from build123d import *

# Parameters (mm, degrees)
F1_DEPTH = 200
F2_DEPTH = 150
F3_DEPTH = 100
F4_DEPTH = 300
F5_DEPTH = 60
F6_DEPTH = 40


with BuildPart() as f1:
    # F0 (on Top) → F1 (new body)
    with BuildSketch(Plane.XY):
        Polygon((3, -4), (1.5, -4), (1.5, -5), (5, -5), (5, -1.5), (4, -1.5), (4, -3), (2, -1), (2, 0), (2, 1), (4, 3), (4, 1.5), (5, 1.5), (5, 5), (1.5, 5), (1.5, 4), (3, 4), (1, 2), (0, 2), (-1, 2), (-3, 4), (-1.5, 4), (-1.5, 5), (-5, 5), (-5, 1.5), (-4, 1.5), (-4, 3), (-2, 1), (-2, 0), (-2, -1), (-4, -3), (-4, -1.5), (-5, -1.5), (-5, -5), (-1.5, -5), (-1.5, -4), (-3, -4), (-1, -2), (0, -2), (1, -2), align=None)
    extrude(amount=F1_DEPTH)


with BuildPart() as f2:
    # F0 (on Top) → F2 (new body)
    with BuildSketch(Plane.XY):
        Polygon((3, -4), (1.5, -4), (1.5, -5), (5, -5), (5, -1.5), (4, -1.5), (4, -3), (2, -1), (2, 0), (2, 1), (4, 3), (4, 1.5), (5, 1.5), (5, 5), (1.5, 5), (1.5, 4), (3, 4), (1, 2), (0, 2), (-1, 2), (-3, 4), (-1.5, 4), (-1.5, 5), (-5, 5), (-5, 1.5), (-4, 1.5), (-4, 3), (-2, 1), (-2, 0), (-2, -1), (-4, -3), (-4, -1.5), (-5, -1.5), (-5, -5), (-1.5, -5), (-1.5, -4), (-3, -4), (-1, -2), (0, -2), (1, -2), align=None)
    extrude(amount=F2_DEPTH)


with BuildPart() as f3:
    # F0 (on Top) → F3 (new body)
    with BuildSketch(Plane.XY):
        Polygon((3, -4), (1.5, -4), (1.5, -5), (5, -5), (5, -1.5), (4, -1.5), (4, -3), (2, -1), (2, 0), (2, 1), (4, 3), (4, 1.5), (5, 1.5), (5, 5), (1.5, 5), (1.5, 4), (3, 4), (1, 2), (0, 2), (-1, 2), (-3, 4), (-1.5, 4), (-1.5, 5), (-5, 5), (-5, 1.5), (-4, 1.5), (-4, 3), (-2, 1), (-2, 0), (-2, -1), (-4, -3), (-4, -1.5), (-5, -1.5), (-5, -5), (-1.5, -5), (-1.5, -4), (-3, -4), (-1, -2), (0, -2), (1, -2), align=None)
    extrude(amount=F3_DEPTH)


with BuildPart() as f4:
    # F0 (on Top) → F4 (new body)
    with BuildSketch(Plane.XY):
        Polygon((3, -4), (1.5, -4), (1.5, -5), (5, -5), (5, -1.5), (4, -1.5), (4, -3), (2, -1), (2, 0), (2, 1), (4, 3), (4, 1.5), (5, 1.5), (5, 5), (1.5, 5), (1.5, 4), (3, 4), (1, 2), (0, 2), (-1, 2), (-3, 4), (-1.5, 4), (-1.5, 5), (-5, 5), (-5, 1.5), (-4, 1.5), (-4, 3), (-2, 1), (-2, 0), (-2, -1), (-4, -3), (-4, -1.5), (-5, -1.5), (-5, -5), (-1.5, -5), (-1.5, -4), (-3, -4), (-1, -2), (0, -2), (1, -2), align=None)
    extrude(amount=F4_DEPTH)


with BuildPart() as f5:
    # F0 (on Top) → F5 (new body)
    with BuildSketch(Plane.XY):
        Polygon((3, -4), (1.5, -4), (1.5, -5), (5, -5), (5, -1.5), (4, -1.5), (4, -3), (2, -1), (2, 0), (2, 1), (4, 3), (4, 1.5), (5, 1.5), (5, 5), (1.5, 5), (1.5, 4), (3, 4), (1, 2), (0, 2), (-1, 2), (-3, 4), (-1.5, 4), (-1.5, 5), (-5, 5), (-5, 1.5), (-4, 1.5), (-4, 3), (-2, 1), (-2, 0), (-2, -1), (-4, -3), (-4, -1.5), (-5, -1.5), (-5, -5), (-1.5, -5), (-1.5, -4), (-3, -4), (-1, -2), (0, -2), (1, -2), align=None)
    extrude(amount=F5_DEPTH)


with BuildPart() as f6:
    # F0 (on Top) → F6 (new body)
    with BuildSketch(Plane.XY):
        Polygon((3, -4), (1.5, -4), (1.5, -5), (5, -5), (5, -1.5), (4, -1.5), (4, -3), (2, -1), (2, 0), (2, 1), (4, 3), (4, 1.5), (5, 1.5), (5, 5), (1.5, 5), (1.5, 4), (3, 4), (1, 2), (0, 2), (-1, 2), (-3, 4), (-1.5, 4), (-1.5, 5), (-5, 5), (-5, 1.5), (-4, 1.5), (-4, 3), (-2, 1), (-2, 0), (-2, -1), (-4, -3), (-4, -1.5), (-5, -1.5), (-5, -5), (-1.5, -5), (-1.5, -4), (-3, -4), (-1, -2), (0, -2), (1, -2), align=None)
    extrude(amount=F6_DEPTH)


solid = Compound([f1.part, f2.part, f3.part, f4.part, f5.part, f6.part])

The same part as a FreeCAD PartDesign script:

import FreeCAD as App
import Part
import Sketcher


def add_polygon(sketch, points):
    """Adds a closed chain of lines whose ends are joined by coincident constraints."""
    first, n = sketch.GeometryCount, len(points)
    for a, b in zip(points, points[1:] + points[:1]):
        sketch.addGeometry(Part.LineSegment(App.Vector(*a, 0), App.Vector(*b, 0)), False)
    for i in range(n):
        sketch.addConstraint(Sketcher.Constraint("Coincident", first + i, 2, first + (i + 1) % n, 1))

doc = App.newDocument("Part")
body = doc.addObject("PartDesign::Body", "Body")

sketch1 = body.newObject("Sketcher::SketchObject", "Sketch")
sketch1.AttachmentSupport = (doc.getObject("XY_Plane"), [""])
sketch1.MapMode = "FlatFace"
add_polygon(sketch1, [(3, -4), (1.5, -4), (1.5, -5), (5, -5), (5, -1.5), (4, -1.5), (4, -3), (2, -1), (2, 1), (4, 3), (4, 1.5), (5, 1.5), (5, 5), (1.5, 5), (1.5, 4), (3, 4), (1, 2), (-1, 2), (-3, 4), (-1.5, 4), (-1.5, 5), (-5, 5), (-5, 1.5), (-4, 1.5), (-4, 3), (-2, 1), (-2, -1), (-4, -3), (-4, -1.5), (-5, -1.5), (-5, -5), (-1.5, -5), (-1.5, -4), (-3, -4), (-1, -2), (1, -2)])
sketch1.addConstraint([
    Sketcher.Constraint("Horizontal", 0),
    Sketcher.Constraint("Vertical", 1),
    Sketcher.Constraint("Horizontal", 2),
    Sketcher.Constraint("Vertical", 3),
    Sketcher.Constraint("Horizontal", 4),
    Sketcher.Constraint("Vertical", 5),
    Sketcher.Constraint("Vertical", 7),
    Sketcher.Constraint("Vertical", 9),
    Sketcher.Constraint("Horizontal", 10),
    Sketcher.Constraint("Vertical", 11),
    Sketcher.Constraint("Horizontal", 12),
    Sketcher.Constraint("Vertical", 13),
    Sketcher.Constraint("Horizontal", 14),
    Sketcher.Constraint("Horizontal", 16),
    Sketcher.Constraint("Horizontal", 18),
    Sketcher.Constraint("Vertical", 19),
    Sketcher.Constraint("Horizontal", 20),
    Sketcher.Constraint("Vertical", 21),
    Sketcher.Constraint("Horizontal", 22),
    Sketcher.Constraint("Vertical", 23),
    Sketcher.Constraint("Vertical", 25),
    Sketcher.Constraint("Vertical", 27),
    Sketcher.Constraint("Horizontal", 28),
    Sketcher.Constraint("Vertical", 29),
    Sketcher.Constraint("Horizontal", 30),
    Sketcher.Constraint("Vertical", 31),
    Sketcher.Constraint("Horizontal", 32),
    Sketcher.Constraint("Horizontal", 34),
    Sketcher.Constraint("Symmetric", 0, 2, 18, 2, -1, 1),
    Sketcher.Constraint("Symmetric", 2, 2, 20, 2, -1, 1),
    Sketcher.Constraint("Symmetric", 4, 2, 22, 2, -1, 1),
    Sketcher.Constraint("Symmetric", 6, 2, 24, 2, -1, 1),
    Sketcher.Constraint("Symmetric", 8, 2, 26, 2, -1, 1),
    Sketcher.Constraint("Symmetric", 10, 2, 28, 2, -1, 1),
    Sketcher.Constraint("Symmetric", 12, 2, 30, 2, -1, 1),
    Sketcher.Constraint("Symmetric", 14, 2, 32, 2, -1, 1),
    Sketcher.Constraint("Symmetric", 15, 2, 33, 2, -1, 1),
    Sketcher.Constraint("Symmetric", 14, 2, 17, 2, -2),
    Sketcher.Constraint("Symmetric", 12, 2, 19, 2, -2),
    Sketcher.Constraint("Symmetric", 10, 2, 21, 2, -2),
    Sketcher.Constraint("Symmetric", 8, 2, 23, 2, -2),
    Sketcher.Constraint("Perpendicular", 6, 8),
    Sketcher.Constraint("Parallel", 8, 15),
    Sketcher.Constraint("Perpendicular", 15, 17),
    Sketcher.Constraint("Parallel", 17, 24),
    Sketcher.Constraint("Perpendicular", 24, 26),
    Sketcher.Constraint("Perpendicular", 33, 35),
    Sketcher.Constraint("Horizontal", 7, 2, 24, 2),
    Sketcher.Constraint("Vertical", 15, 2, 34, 2),
    Sketcher.Constraint("Equal", 28, 1),
    Sketcher.Constraint("Equal", 30, 3),
    Sketcher.Constraint("Equal", 32, 5),
    Sketcher.Constraint("Equal", 34, 7),
    Sketcher.Constraint("Equal", 8, 15),
    Sketcher.Constraint("DistanceX", 4, 2, 4, 1, 1.0),
    Sketcher.Constraint("DistanceX", 16, 2, 16, 1, 2.0),
    Sketcher.Constraint("DistanceX", 0, 2, 0, 1, 1.5),
    Sketcher.Constraint("DistanceX", 2, 1, 2, 2, 3.5),
    Sketcher.Constraint("DistanceY", 0, 2, -1, 1, 4.0),
])
pad1 = body.newObject("PartDesign::Pad", "Pad")
pad1.Profile = sketch1
pad1.Length = 200
body2 = doc.addObject("PartDesign::Body", "Body001")

sketch2 = body2.newObject("Sketcher::SketchObject", "Sketch001")
sketch2.AttachmentSupport = (doc.getObject("XY_Plane001"), [""])
sketch2.MapMode = "FlatFace"
add_polygon(sketch2, [(3, -4), (1.5, -4), (1.5, -5), (5, -5), (5, -1.5), (4, -1.5), (4, -3), (2, -1), (2, 1), (4, 3), (4, 1.5), (5, 1.5), (5, 5), (1.5, 5), (1.5, 4), (3, 4), (1, 2), (-1, 2), (-3, 4), (-1.5, 4), (-1.5, 5), (-5, 5), (-5, 1.5), (-4, 1.5), (-4, 3), (-2, 1), (-2, -1), (-4, -3), (-4, -1.5), (-5, -1.5), (-5, -5), (-1.5, -5), (-1.5, -4), (-3, -4), (-1, -2), (1, -2)])
sketch2.addConstraint([
    Sketcher.Constraint("Horizontal", 0),
    Sketcher.Constraint("Vertical", 1),
    Sketcher.Constraint("Horizontal", 2),
    Sketcher.Constraint("Vertical", 3),
    Sketcher.Constraint("Horizontal", 4),
    Sketcher.Constraint("Vertical", 5),
    Sketcher.Constraint("Vertical", 7),
    Sketcher.Constraint("Vertical", 9),
    Sketcher.Constraint("Horizontal", 10),
    Sketcher.Constraint("Vertical", 11),
    Sketcher.Constraint("Horizontal", 12),
    Sketcher.Constraint("Vertical", 13),
    Sketcher.Constraint("Horizontal", 14),
    Sketcher.Constraint("Horizontal", 16),
    Sketcher.Constraint("Horizontal", 18),
    Sketcher.Constraint("Vertical", 19),
    Sketcher.Constraint("Horizontal", 20),
    Sketcher.Constraint("Vertical", 21),
    Sketcher.Constraint("Horizontal", 22),
    Sketcher.Constraint("Vertical", 23),
    Sketcher.Constraint("Vertical", 25),
    Sketcher.Constraint("Vertical", 27),
    Sketcher.Constraint("Horizontal", 28),
    Sketcher.Constraint("Vertical", 29),
    Sketcher.Constraint("Horizontal", 30),
    Sketcher.Constraint("Vertical", 31),
    Sketcher.Constraint("Horizontal", 32),
    Sketcher.Constraint("Horizontal", 34),
    Sketcher.Constraint("Symmetric", 0, 2, 18, 2, -1, 1),
    Sketcher.Constraint("Symmetric", 2, 2, 20, 2, -1, 1),
    Sketcher.Constraint("Symmetric", 4, 2, 22, 2, -1, 1),
    Sketcher.Constraint("Symmetric", 6, 2, 24, 2, -1, 1),
    Sketcher.Constraint("Symmetric", 8, 2, 26, 2, -1, 1),
    Sketcher.Constraint("Symmetric", 10, 2, 28, 2, -1, 1),
    Sketcher.Constraint("Symmetric", 12, 2, 30, 2, -1, 1),
    Sketcher.Constraint("Symmetric", 14, 2, 32, 2, -1, 1),
    Sketcher.Constraint("Symmetric", 15, 2, 33, 2, -1, 1),
    Sketcher.Constraint("Symmetric", 14, 2, 17, 2, -2),
    Sketcher.Constraint("Symmetric", 12, 2, 19, 2, -2),
    Sketcher.Constraint("Symmetric", 10, 2, 21, 2, -2),
    Sketcher.Constraint("Symmetric", 8, 2, 23, 2, -2),
    Sketcher.Constraint("Perpendicular", 6, 8),
    Sketcher.Constraint("Parallel", 8, 15),
    Sketcher.Constraint("Perpendicular", 15, 17),
    Sketcher.Constraint("Parallel", 17, 24),
    Sketcher.Constraint("Perpendicular", 24, 26),
    Sketcher.Constraint("Perpendicular", 33, 35),
    Sketcher.Constraint("Horizontal", 7, 2, 24, 2),
    Sketcher.Constraint("Vertical", 15, 2, 34, 2),
    Sketcher.Constraint("Equal", 28, 1),
    Sketcher.Constraint("Equal", 30, 3),
    Sketcher.Constraint("Equal", 32, 5),
    Sketcher.Constraint("Equal", 34, 7),
    Sketcher.Constraint("Equal", 8, 15),
    Sketcher.Constraint("DistanceX", 4, 2, 4, 1, 1.0),
    Sketcher.Constraint("DistanceX", 16, 2, 16, 1, 2.0),
    Sketcher.Constraint("DistanceX", 0, 2, 0, 1, 1.5),
    Sketcher.Constraint("DistanceX", 2, 1, 2, 2, 3.5),
    Sketcher.Constraint("DistanceY", 0, 2, -1, 1, 4.0),
])
pad2 = body2.newObject("PartDesign::Pad", "Pad001")
pad2.Profile = sketch2
pad2.Length = 150
body3 = doc.addObject("PartDesign::Body", "Body002")

sketch3 = body3.newObject("Sketcher::SketchObject", "Sketch002")
sketch3.AttachmentSupport = (doc.getObject("XY_Plane002"), [""])
sketch3.MapMode = "FlatFace"
add_polygon(sketch3, [(3, -4), (1.5, -4), (1.5, -5), (5, -5), (5, -1.5), (4, -1.5), (4, -3), (2, -1), (2, 1), (4, 3), (4, 1.5), (5, 1.5), (5, 5), (1.5, 5), (1.5, 4), (3, 4), (1, 2), (-1, 2), (-3, 4), (-1.5, 4), (-1.5, 5), (-5, 5), (-5, 1.5), (-4, 1.5), (-4, 3), (-2, 1), (-2, -1), (-4, -3), (-4, -1.5), (-5, -1.5), (-5, -5), (-1.5, -5), (-1.5, -4), (-3, -4), (-1, -2), (1, -2)])
sketch3.addConstraint([
    Sketcher.Constraint("Horizontal", 0),
    Sketcher.Constraint("Vertical", 1),
    Sketcher.Constraint("Horizontal", 2),
    Sketcher.Constraint("Vertical", 3),
    Sketcher.Constraint("Horizontal", 4),
    Sketcher.Constraint("Vertical", 5),
    Sketcher.Constraint("Vertical", 7),
    Sketcher.Constraint("Vertical", 9),
    Sketcher.Constraint("Horizontal", 10),
    Sketcher.Constraint("Vertical", 11),
    Sketcher.Constraint("Horizontal", 12),
    Sketcher.Constraint("Vertical", 13),
    Sketcher.Constraint("Horizontal", 14),
    Sketcher.Constraint("Horizontal", 16),
    Sketcher.Constraint("Horizontal", 18),
    Sketcher.Constraint("Vertical", 19),
    Sketcher.Constraint("Horizontal", 20),
    Sketcher.Constraint("Vertical", 21),
    Sketcher.Constraint("Horizontal", 22),
    Sketcher.Constraint("Vertical", 23),
    Sketcher.Constraint("Vertical", 25),
    Sketcher.Constraint("Vertical", 27),
    Sketcher.Constraint("Horizontal", 28),
    Sketcher.Constraint("Vertical", 29),
    Sketcher.Constraint("Horizontal", 30),
    Sketcher.Constraint("Vertical", 31),
    Sketcher.Constraint("Horizontal", 32),
    Sketcher.Constraint("Horizontal", 34),
    Sketcher.Constraint("Symmetric", 0, 2, 18, 2, -1, 1),
    Sketcher.Constraint("Symmetric", 2, 2, 20, 2, -1, 1),
    Sketcher.Constraint("Symmetric", 4, 2, 22, 2, -1, 1),
    Sketcher.Constraint("Symmetric", 6, 2, 24, 2, -1, 1),
    Sketcher.Constraint("Symmetric", 8, 2, 26, 2, -1, 1),
    Sketcher.Constraint("Symmetric", 10, 2, 28, 2, -1, 1),
    Sketcher.Constraint("Symmetric", 12, 2, 30, 2, -1, 1),
    Sketcher.Constraint("Symmetric", 14, 2, 32, 2, -1, 1),
    Sketcher.Constraint("Symmetric", 15, 2, 33, 2, -1, 1),
    Sketcher.Constraint("Symmetric", 14, 2, 17, 2, -2),
    Sketcher.Constraint("Symmetric", 12, 2, 19, 2, -2),
    Sketcher.Constraint("Symmetric", 10, 2, 21, 2, -2),
    Sketcher.Constraint("Symmetric", 8, 2, 23, 2, -2),
    Sketcher.Constraint("Perpendicular", 6, 8),
    Sketcher.Constraint("Parallel", 8, 15),
    Sketcher.Constraint("Perpendicular", 15, 17),
    Sketcher.Constraint("Parallel", 17, 24),
    Sketcher.Constraint("Perpendicular", 24, 26),
    Sketcher.Constraint("Perpendicular", 33, 35),
    Sketcher.Constraint("Horizontal", 7, 2, 24, 2),
    Sketcher.Constraint("Vertical", 15, 2, 34, 2),
    Sketcher.Constraint("Equal", 28, 1),
    Sketcher.Constraint("Equal", 30, 3),
    Sketcher.Constraint("Equal", 32, 5),
    Sketcher.Constraint("Equal", 34, 7),
    Sketcher.Constraint("Equal", 8, 15),
    Sketcher.Constraint("DistanceX", 4, 2, 4, 1, 1.0),
    Sketcher.Constraint("DistanceX", 16, 2, 16, 1, 2.0),
    Sketcher.Constraint("DistanceX", 0, 2, 0, 1, 1.5),
    Sketcher.Constraint("DistanceX", 2, 1, 2, 2, 3.5),
    Sketcher.Constraint("DistanceY", 0, 2, -1, 1, 4.0),
])
pad3 = body3.newObject("PartDesign::Pad", "Pad002")
pad3.Profile = sketch3
pad3.Length = 100
body4 = doc.addObject("PartDesign::Body", "Body003")

sketch4 = body4.newObject("Sketcher::SketchObject", "Sketch003")
sketch4.AttachmentSupport = (doc.getObject("XY_Plane003"), [""])
sketch4.MapMode = "FlatFace"
add_polygon(sketch4, [(3, -4), (1.5, -4), (1.5, -5), (5, -5), (5, -1.5), (4, -1.5), (4, -3), (2, -1), (2, 1), (4, 3), (4, 1.5), (5, 1.5), (5, 5), (1.5, 5), (1.5, 4), (3, 4), (1, 2), (-1, 2), (-3, 4), (-1.5, 4), (-1.5, 5), (-5, 5), (-5, 1.5), (-4, 1.5), (-4, 3), (-2, 1), (-2, -1), (-4, -3), (-4, -1.5), (-5, -1.5), (-5, -5), (-1.5, -5), (-1.5, -4), (-3, -4), (-1, -2), (1, -2)])
sketch4.addConstraint([
    Sketcher.Constraint("Horizontal", 0),
    Sketcher.Constraint("Vertical", 1),
    Sketcher.Constraint("Horizontal", 2),
    Sketcher.Constraint("Vertical", 3),
    Sketcher.Constraint("Horizontal", 4),
    Sketcher.Constraint("Vertical", 5),
    Sketcher.Constraint("Vertical", 7),
    Sketcher.Constraint("Vertical", 9),
    Sketcher.Constraint("Horizontal", 10),
    Sketcher.Constraint("Vertical", 11),
    Sketcher.Constraint("Horizontal", 12),
    Sketcher.Constraint("Vertical", 13),
    Sketcher.Constraint("Horizontal", 14),
    Sketcher.Constraint("Horizontal", 16),
    Sketcher.Constraint("Horizontal", 18),
    Sketcher.Constraint("Vertical", 19),
    Sketcher.Constraint("Horizontal", 20),
    Sketcher.Constraint("Vertical", 21),
    Sketcher.Constraint("Horizontal", 22),
    Sketcher.Constraint("Vertical", 23),
    Sketcher.Constraint("Vertical", 25),
    Sketcher.Constraint("Vertical", 27),
    Sketcher.Constraint("Horizontal", 28),
    Sketcher.Constraint("Vertical", 29),
    Sketcher.Constraint("Horizontal", 30),
    Sketcher.Constraint("Vertical", 31),
    Sketcher.Constraint("Horizontal", 32),
    Sketcher.Constraint("Horizontal", 34),
    Sketcher.Constraint("Symmetric", 0, 2, 18, 2, -1, 1),
    Sketcher.Constraint("Symmetric", 2, 2, 20, 2, -1, 1),
    Sketcher.Constraint("Symmetric", 4, 2, 22, 2, -1, 1),
    Sketcher.Constraint("Symmetric", 6, 2, 24, 2, -1, 1),
    Sketcher.Constraint("Symmetric", 8, 2, 26, 2, -1, 1),
    Sketcher.Constraint("Symmetric", 10, 2, 28, 2, -1, 1),
    Sketcher.Constraint("Symmetric", 12, 2, 30, 2, -1, 1),
    Sketcher.Constraint("Symmetric", 14, 2, 32, 2, -1, 1),
    Sketcher.Constraint("Symmetric", 15, 2, 33, 2, -1, 1),
    Sketcher.Constraint("Symmetric", 14, 2, 17, 2, -2),
    Sketcher.Constraint("Symmetric", 12, 2, 19, 2, -2),
    Sketcher.Constraint("Symmetric", 10, 2, 21, 2, -2),
    Sketcher.Constraint("Symmetric", 8, 2, 23, 2, -2),
    Sketcher.Constraint("Perpendicular", 6, 8),
    Sketcher.Constraint("Parallel", 8, 15),
    Sketcher.Constraint("Perpendicular", 15, 17),
    Sketcher.Constraint("Parallel", 17, 24),
    Sketcher.Constraint("Perpendicular", 24, 26),
    Sketcher.Constraint("Perpendicular", 33, 35),
    Sketcher.Constraint("Horizontal", 7, 2, 24, 2),
    Sketcher.Constraint("Vertical", 15, 2, 34, 2),
    Sketcher.Constraint("Equal", 28, 1),
    Sketcher.Constraint("Equal", 30, 3),
    Sketcher.Constraint("Equal", 32, 5),
    Sketcher.Constraint("Equal", 34, 7),
    Sketcher.Constraint("Equal", 8, 15),
    Sketcher.Constraint("DistanceX", 4, 2, 4, 1, 1.0),
    Sketcher.Constraint("DistanceX", 16, 2, 16, 1, 2.0),
    Sketcher.Constraint("DistanceX", 0, 2, 0, 1, 1.5),
    Sketcher.Constraint("DistanceX", 2, 1, 2, 2, 3.5),
    Sketcher.Constraint("DistanceY", 0, 2, -1, 1, 4.0),
])
pad4 = body4.newObject("PartDesign::Pad", "Pad003")
pad4.Profile = sketch4
pad4.Length = 300
body5 = doc.addObject("PartDesign::Body", "Body004")

sketch5 = body5.newObject("Sketcher::SketchObject", "Sketch004")
sketch5.AttachmentSupport = (doc.getObject("XY_Plane004"), [""])
sketch5.MapMode = "FlatFace"
add_polygon(sketch5, [(3, -4), (1.5, -4), (1.5, -5), (5, -5), (5, -1.5), (4, -1.5), (4, -3), (2, -1), (2, 1), (4, 3), (4, 1.5), (5, 1.5), (5, 5), (1.5, 5), (1.5, 4), (3, 4), (1, 2), (-1, 2), (-3, 4), (-1.5, 4), (-1.5, 5), (-5, 5), (-5, 1.5), (-4, 1.5), (-4, 3), (-2, 1), (-2, -1), (-4, -3), (-4, -1.5), (-5, -1.5), (-5, -5), (-1.5, -5), (-1.5, -4), (-3, -4), (-1, -2), (1, -2)])
sketch5.addConstraint([
    Sketcher.Constraint("Horizontal", 0),
    Sketcher.Constraint("Vertical", 1),
    Sketcher.Constraint("Horizontal", 2),
    Sketcher.Constraint("Vertical", 3),
    Sketcher.Constraint("Horizontal", 4),
    Sketcher.Constraint("Vertical", 5),
    Sketcher.Constraint("Vertical", 7),
    Sketcher.Constraint("Vertical", 9),
    Sketcher.Constraint("Horizontal", 10),
    Sketcher.Constraint("Vertical", 11),
    Sketcher.Constraint("Horizontal", 12),
    Sketcher.Constraint("Vertical", 13),
    Sketcher.Constraint("Horizontal", 14),
    Sketcher.Constraint("Horizontal", 16),
    Sketcher.Constraint("Horizontal", 18),
    Sketcher.Constraint("Vertical", 19),
    Sketcher.Constraint("Horizontal", 20),
    Sketcher.Constraint("Vertical", 21),
    Sketcher.Constraint("Horizontal", 22),
    Sketcher.Constraint("Vertical", 23),
    Sketcher.Constraint("Vertical", 25),
    Sketcher.Constraint("Vertical", 27),
    Sketcher.Constraint("Horizontal", 28),
    Sketcher.Constraint("Vertical", 29),
    Sketcher.Constraint("Horizontal", 30),
    Sketcher.Constraint("Vertical", 31),
    Sketcher.Constraint("Horizontal", 32),
    Sketcher.Constraint("Horizontal", 34),
    Sketcher.Constraint("Symmetric", 0, 2, 18, 2, -1, 1),
    Sketcher.Constraint("Symmetric", 2, 2, 20, 2, -1, 1),
    Sketcher.Constraint("Symmetric", 4, 2, 22, 2, -1, 1),
    Sketcher.Constraint("Symmetric", 6, 2, 24, 2, -1, 1),
    Sketcher.Constraint("Symmetric", 8, 2, 26, 2, -1, 1),
    Sketcher.Constraint("Symmetric", 10, 2, 28, 2, -1, 1),
    Sketcher.Constraint("Symmetric", 12, 2, 30, 2, -1, 1),
    Sketcher.Constraint("Symmetric", 14, 2, 32, 2, -1, 1),
    Sketcher.Constraint("Symmetric", 15, 2, 33, 2, -1, 1),
    Sketcher.Constraint("Symmetric", 14, 2, 17, 2, -2),
    Sketcher.Constraint("Symmetric", 12, 2, 19, 2, -2),
    Sketcher.Constraint("Symmetric", 10, 2, 21, 2, -2),
    Sketcher.Constraint("Symmetric", 8, 2, 23, 2, -2),
    Sketcher.Constraint("Perpendicular", 6, 8),
    Sketcher.Constraint("Parallel", 8, 15),
    Sketcher.Constraint("Perpendicular", 15, 17),
    Sketcher.Constraint("Parallel", 17, 24),
    Sketcher.Constraint("Perpendicular", 24, 26),
    Sketcher.Constraint("Perpendicular", 33, 35),
    Sketcher.Constraint("Horizontal", 7, 2, 24, 2),
    Sketcher.Constraint("Vertical", 15, 2, 34, 2),
    Sketcher.Constraint("Equal", 28, 1),
    Sketcher.Constraint("Equal", 30, 3),
    Sketcher.Constraint("Equal", 32, 5),
    Sketcher.Constraint("Equal", 34, 7),
    Sketcher.Constraint("Equal", 8, 15),
    Sketcher.Constraint("DistanceX", 4, 2, 4, 1, 1.0),
    Sketcher.Constraint("DistanceX", 16, 2, 16, 1, 2.0),
    Sketcher.Constraint("DistanceX", 0, 2, 0, 1, 1.5),
    Sketcher.Constraint("DistanceX", 2, 1, 2, 2, 3.5),
    Sketcher.Constraint("DistanceY", 0, 2, -1, 1, 4.0),
])
pad5 = body5.newObject("PartDesign::Pad", "Pad004")
pad5.Profile = sketch5
pad5.Length = 60
body6 = doc.addObject("PartDesign::Body", "Body005")

sketch6 = body6.newObject("Sketcher::SketchObject", "Sketch005")
sketch6.AttachmentSupport = (doc.getObject("XY_Plane005"), [""])
sketch6.MapMode = "FlatFace"
add_polygon(sketch6, [(3, -4), (1.5, -4), (1.5, -5), (5, -5), (5, -1.5), (4, -1.5), (4, -3), (2, -1), (2, 1), (4, 3), (4, 1.5), (5, 1.5), (5, 5), (1.5, 5), (1.5, 4), (3, 4), (1, 2), (-1, 2), (-3, 4), (-1.5, 4), (-1.5, 5), (-5, 5), (-5, 1.5), (-4, 1.5), (-4, 3), (-2, 1), (-2, -1), (-4, -3), (-4, -1.5), (-5, -1.5), (-5, -5), (-1.5, -5), (-1.5, -4), (-3, -4), (-1, -2), (1, -2)])
sketch6.addConstraint([
    Sketcher.Constraint("Horizontal", 0),
    Sketcher.Constraint("Vertical", 1),
    Sketcher.Constraint("Horizontal", 2),
    Sketcher.Constraint("Vertical", 3),
    Sketcher.Constraint("Horizontal", 4),
    Sketcher.Constraint("Vertical", 5),
    Sketcher.Constraint("Vertical", 7),
    Sketcher.Constraint("Vertical", 9),
    Sketcher.Constraint("Horizontal", 10),
    Sketcher.Constraint("Vertical", 11),
    Sketcher.Constraint("Horizontal", 12),
    Sketcher.Constraint("Vertical", 13),
    Sketcher.Constraint("Horizontal", 14),
    Sketcher.Constraint("Horizontal", 16),
    Sketcher.Constraint("Horizontal", 18),
    Sketcher.Constraint("Vertical", 19),
    Sketcher.Constraint("Horizontal", 20),
    Sketcher.Constraint("Vertical", 21),
    Sketcher.Constraint("Horizontal", 22),
    Sketcher.Constraint("Vertical", 23),
    Sketcher.Constraint("Vertical", 25),
    Sketcher.Constraint("Vertical", 27),
    Sketcher.Constraint("Horizontal", 28),
    Sketcher.Constraint("Vertical", 29),
    Sketcher.Constraint("Horizontal", 30),
    Sketcher.Constraint("Vertical", 31),
    Sketcher.Constraint("Horizontal", 32),
    Sketcher.Constraint("Horizontal", 34),
    Sketcher.Constraint("Symmetric", 0, 2, 18, 2, -1, 1),
    Sketcher.Constraint("Symmetric", 2, 2, 20, 2, -1, 1),
    Sketcher.Constraint("Symmetric", 4, 2, 22, 2, -1, 1),
    Sketcher.Constraint("Symmetric", 6, 2, 24, 2, -1, 1),
    Sketcher.Constraint("Symmetric", 8, 2, 26, 2, -1, 1),
    Sketcher.Constraint("Symmetric", 10, 2, 28, 2, -1, 1),
    Sketcher.Constraint("Symmetric", 12, 2, 30, 2, -1, 1),
    Sketcher.Constraint("Symmetric", 14, 2, 32, 2, -1, 1),
    Sketcher.Constraint("Symmetric", 15, 2, 33, 2, -1, 1),
    Sketcher.Constraint("Symmetric", 14, 2, 17, 2, -2),
    Sketcher.Constraint("Symmetric", 12, 2, 19, 2, -2),
    Sketcher.Constraint("Symmetric", 10, 2, 21, 2, -2),
    Sketcher.Constraint("Symmetric", 8, 2, 23, 2, -2),
    Sketcher.Constraint("Perpendicular", 6, 8),
    Sketcher.Constraint("Parallel", 8, 15),
    Sketcher.Constraint("Perpendicular", 15, 17),
    Sketcher.Constraint("Parallel", 17, 24),
    Sketcher.Constraint("Perpendicular", 24, 26),
    Sketcher.Constraint("Perpendicular", 33, 35),
    Sketcher.Constraint("Horizontal", 7, 2, 24, 2),
    Sketcher.Constraint("Vertical", 15, 2, 34, 2),
    Sketcher.Constraint("Equal", 28, 1),
    Sketcher.Constraint("Equal", 30, 3),
    Sketcher.Constraint("Equal", 32, 5),
    Sketcher.Constraint("Equal", 34, 7),
    Sketcher.Constraint("Equal", 8, 15),
    Sketcher.Constraint("DistanceX", 4, 2, 4, 1, 1.0),
    Sketcher.Constraint("DistanceX", 16, 2, 16, 1, 2.0),
    Sketcher.Constraint("DistanceX", 0, 2, 0, 1, 1.5),
    Sketcher.Constraint("DistanceX", 2, 1, 2, 2, 3.5),
    Sketcher.Constraint("DistanceY", 0, 2, -1, 1, 4.0),
])
pad6 = body6.newObject("PartDesign::Pad", "Pad005")
pad6.Profile = sketch6
pad6.Length = 40

doc.recompute()
